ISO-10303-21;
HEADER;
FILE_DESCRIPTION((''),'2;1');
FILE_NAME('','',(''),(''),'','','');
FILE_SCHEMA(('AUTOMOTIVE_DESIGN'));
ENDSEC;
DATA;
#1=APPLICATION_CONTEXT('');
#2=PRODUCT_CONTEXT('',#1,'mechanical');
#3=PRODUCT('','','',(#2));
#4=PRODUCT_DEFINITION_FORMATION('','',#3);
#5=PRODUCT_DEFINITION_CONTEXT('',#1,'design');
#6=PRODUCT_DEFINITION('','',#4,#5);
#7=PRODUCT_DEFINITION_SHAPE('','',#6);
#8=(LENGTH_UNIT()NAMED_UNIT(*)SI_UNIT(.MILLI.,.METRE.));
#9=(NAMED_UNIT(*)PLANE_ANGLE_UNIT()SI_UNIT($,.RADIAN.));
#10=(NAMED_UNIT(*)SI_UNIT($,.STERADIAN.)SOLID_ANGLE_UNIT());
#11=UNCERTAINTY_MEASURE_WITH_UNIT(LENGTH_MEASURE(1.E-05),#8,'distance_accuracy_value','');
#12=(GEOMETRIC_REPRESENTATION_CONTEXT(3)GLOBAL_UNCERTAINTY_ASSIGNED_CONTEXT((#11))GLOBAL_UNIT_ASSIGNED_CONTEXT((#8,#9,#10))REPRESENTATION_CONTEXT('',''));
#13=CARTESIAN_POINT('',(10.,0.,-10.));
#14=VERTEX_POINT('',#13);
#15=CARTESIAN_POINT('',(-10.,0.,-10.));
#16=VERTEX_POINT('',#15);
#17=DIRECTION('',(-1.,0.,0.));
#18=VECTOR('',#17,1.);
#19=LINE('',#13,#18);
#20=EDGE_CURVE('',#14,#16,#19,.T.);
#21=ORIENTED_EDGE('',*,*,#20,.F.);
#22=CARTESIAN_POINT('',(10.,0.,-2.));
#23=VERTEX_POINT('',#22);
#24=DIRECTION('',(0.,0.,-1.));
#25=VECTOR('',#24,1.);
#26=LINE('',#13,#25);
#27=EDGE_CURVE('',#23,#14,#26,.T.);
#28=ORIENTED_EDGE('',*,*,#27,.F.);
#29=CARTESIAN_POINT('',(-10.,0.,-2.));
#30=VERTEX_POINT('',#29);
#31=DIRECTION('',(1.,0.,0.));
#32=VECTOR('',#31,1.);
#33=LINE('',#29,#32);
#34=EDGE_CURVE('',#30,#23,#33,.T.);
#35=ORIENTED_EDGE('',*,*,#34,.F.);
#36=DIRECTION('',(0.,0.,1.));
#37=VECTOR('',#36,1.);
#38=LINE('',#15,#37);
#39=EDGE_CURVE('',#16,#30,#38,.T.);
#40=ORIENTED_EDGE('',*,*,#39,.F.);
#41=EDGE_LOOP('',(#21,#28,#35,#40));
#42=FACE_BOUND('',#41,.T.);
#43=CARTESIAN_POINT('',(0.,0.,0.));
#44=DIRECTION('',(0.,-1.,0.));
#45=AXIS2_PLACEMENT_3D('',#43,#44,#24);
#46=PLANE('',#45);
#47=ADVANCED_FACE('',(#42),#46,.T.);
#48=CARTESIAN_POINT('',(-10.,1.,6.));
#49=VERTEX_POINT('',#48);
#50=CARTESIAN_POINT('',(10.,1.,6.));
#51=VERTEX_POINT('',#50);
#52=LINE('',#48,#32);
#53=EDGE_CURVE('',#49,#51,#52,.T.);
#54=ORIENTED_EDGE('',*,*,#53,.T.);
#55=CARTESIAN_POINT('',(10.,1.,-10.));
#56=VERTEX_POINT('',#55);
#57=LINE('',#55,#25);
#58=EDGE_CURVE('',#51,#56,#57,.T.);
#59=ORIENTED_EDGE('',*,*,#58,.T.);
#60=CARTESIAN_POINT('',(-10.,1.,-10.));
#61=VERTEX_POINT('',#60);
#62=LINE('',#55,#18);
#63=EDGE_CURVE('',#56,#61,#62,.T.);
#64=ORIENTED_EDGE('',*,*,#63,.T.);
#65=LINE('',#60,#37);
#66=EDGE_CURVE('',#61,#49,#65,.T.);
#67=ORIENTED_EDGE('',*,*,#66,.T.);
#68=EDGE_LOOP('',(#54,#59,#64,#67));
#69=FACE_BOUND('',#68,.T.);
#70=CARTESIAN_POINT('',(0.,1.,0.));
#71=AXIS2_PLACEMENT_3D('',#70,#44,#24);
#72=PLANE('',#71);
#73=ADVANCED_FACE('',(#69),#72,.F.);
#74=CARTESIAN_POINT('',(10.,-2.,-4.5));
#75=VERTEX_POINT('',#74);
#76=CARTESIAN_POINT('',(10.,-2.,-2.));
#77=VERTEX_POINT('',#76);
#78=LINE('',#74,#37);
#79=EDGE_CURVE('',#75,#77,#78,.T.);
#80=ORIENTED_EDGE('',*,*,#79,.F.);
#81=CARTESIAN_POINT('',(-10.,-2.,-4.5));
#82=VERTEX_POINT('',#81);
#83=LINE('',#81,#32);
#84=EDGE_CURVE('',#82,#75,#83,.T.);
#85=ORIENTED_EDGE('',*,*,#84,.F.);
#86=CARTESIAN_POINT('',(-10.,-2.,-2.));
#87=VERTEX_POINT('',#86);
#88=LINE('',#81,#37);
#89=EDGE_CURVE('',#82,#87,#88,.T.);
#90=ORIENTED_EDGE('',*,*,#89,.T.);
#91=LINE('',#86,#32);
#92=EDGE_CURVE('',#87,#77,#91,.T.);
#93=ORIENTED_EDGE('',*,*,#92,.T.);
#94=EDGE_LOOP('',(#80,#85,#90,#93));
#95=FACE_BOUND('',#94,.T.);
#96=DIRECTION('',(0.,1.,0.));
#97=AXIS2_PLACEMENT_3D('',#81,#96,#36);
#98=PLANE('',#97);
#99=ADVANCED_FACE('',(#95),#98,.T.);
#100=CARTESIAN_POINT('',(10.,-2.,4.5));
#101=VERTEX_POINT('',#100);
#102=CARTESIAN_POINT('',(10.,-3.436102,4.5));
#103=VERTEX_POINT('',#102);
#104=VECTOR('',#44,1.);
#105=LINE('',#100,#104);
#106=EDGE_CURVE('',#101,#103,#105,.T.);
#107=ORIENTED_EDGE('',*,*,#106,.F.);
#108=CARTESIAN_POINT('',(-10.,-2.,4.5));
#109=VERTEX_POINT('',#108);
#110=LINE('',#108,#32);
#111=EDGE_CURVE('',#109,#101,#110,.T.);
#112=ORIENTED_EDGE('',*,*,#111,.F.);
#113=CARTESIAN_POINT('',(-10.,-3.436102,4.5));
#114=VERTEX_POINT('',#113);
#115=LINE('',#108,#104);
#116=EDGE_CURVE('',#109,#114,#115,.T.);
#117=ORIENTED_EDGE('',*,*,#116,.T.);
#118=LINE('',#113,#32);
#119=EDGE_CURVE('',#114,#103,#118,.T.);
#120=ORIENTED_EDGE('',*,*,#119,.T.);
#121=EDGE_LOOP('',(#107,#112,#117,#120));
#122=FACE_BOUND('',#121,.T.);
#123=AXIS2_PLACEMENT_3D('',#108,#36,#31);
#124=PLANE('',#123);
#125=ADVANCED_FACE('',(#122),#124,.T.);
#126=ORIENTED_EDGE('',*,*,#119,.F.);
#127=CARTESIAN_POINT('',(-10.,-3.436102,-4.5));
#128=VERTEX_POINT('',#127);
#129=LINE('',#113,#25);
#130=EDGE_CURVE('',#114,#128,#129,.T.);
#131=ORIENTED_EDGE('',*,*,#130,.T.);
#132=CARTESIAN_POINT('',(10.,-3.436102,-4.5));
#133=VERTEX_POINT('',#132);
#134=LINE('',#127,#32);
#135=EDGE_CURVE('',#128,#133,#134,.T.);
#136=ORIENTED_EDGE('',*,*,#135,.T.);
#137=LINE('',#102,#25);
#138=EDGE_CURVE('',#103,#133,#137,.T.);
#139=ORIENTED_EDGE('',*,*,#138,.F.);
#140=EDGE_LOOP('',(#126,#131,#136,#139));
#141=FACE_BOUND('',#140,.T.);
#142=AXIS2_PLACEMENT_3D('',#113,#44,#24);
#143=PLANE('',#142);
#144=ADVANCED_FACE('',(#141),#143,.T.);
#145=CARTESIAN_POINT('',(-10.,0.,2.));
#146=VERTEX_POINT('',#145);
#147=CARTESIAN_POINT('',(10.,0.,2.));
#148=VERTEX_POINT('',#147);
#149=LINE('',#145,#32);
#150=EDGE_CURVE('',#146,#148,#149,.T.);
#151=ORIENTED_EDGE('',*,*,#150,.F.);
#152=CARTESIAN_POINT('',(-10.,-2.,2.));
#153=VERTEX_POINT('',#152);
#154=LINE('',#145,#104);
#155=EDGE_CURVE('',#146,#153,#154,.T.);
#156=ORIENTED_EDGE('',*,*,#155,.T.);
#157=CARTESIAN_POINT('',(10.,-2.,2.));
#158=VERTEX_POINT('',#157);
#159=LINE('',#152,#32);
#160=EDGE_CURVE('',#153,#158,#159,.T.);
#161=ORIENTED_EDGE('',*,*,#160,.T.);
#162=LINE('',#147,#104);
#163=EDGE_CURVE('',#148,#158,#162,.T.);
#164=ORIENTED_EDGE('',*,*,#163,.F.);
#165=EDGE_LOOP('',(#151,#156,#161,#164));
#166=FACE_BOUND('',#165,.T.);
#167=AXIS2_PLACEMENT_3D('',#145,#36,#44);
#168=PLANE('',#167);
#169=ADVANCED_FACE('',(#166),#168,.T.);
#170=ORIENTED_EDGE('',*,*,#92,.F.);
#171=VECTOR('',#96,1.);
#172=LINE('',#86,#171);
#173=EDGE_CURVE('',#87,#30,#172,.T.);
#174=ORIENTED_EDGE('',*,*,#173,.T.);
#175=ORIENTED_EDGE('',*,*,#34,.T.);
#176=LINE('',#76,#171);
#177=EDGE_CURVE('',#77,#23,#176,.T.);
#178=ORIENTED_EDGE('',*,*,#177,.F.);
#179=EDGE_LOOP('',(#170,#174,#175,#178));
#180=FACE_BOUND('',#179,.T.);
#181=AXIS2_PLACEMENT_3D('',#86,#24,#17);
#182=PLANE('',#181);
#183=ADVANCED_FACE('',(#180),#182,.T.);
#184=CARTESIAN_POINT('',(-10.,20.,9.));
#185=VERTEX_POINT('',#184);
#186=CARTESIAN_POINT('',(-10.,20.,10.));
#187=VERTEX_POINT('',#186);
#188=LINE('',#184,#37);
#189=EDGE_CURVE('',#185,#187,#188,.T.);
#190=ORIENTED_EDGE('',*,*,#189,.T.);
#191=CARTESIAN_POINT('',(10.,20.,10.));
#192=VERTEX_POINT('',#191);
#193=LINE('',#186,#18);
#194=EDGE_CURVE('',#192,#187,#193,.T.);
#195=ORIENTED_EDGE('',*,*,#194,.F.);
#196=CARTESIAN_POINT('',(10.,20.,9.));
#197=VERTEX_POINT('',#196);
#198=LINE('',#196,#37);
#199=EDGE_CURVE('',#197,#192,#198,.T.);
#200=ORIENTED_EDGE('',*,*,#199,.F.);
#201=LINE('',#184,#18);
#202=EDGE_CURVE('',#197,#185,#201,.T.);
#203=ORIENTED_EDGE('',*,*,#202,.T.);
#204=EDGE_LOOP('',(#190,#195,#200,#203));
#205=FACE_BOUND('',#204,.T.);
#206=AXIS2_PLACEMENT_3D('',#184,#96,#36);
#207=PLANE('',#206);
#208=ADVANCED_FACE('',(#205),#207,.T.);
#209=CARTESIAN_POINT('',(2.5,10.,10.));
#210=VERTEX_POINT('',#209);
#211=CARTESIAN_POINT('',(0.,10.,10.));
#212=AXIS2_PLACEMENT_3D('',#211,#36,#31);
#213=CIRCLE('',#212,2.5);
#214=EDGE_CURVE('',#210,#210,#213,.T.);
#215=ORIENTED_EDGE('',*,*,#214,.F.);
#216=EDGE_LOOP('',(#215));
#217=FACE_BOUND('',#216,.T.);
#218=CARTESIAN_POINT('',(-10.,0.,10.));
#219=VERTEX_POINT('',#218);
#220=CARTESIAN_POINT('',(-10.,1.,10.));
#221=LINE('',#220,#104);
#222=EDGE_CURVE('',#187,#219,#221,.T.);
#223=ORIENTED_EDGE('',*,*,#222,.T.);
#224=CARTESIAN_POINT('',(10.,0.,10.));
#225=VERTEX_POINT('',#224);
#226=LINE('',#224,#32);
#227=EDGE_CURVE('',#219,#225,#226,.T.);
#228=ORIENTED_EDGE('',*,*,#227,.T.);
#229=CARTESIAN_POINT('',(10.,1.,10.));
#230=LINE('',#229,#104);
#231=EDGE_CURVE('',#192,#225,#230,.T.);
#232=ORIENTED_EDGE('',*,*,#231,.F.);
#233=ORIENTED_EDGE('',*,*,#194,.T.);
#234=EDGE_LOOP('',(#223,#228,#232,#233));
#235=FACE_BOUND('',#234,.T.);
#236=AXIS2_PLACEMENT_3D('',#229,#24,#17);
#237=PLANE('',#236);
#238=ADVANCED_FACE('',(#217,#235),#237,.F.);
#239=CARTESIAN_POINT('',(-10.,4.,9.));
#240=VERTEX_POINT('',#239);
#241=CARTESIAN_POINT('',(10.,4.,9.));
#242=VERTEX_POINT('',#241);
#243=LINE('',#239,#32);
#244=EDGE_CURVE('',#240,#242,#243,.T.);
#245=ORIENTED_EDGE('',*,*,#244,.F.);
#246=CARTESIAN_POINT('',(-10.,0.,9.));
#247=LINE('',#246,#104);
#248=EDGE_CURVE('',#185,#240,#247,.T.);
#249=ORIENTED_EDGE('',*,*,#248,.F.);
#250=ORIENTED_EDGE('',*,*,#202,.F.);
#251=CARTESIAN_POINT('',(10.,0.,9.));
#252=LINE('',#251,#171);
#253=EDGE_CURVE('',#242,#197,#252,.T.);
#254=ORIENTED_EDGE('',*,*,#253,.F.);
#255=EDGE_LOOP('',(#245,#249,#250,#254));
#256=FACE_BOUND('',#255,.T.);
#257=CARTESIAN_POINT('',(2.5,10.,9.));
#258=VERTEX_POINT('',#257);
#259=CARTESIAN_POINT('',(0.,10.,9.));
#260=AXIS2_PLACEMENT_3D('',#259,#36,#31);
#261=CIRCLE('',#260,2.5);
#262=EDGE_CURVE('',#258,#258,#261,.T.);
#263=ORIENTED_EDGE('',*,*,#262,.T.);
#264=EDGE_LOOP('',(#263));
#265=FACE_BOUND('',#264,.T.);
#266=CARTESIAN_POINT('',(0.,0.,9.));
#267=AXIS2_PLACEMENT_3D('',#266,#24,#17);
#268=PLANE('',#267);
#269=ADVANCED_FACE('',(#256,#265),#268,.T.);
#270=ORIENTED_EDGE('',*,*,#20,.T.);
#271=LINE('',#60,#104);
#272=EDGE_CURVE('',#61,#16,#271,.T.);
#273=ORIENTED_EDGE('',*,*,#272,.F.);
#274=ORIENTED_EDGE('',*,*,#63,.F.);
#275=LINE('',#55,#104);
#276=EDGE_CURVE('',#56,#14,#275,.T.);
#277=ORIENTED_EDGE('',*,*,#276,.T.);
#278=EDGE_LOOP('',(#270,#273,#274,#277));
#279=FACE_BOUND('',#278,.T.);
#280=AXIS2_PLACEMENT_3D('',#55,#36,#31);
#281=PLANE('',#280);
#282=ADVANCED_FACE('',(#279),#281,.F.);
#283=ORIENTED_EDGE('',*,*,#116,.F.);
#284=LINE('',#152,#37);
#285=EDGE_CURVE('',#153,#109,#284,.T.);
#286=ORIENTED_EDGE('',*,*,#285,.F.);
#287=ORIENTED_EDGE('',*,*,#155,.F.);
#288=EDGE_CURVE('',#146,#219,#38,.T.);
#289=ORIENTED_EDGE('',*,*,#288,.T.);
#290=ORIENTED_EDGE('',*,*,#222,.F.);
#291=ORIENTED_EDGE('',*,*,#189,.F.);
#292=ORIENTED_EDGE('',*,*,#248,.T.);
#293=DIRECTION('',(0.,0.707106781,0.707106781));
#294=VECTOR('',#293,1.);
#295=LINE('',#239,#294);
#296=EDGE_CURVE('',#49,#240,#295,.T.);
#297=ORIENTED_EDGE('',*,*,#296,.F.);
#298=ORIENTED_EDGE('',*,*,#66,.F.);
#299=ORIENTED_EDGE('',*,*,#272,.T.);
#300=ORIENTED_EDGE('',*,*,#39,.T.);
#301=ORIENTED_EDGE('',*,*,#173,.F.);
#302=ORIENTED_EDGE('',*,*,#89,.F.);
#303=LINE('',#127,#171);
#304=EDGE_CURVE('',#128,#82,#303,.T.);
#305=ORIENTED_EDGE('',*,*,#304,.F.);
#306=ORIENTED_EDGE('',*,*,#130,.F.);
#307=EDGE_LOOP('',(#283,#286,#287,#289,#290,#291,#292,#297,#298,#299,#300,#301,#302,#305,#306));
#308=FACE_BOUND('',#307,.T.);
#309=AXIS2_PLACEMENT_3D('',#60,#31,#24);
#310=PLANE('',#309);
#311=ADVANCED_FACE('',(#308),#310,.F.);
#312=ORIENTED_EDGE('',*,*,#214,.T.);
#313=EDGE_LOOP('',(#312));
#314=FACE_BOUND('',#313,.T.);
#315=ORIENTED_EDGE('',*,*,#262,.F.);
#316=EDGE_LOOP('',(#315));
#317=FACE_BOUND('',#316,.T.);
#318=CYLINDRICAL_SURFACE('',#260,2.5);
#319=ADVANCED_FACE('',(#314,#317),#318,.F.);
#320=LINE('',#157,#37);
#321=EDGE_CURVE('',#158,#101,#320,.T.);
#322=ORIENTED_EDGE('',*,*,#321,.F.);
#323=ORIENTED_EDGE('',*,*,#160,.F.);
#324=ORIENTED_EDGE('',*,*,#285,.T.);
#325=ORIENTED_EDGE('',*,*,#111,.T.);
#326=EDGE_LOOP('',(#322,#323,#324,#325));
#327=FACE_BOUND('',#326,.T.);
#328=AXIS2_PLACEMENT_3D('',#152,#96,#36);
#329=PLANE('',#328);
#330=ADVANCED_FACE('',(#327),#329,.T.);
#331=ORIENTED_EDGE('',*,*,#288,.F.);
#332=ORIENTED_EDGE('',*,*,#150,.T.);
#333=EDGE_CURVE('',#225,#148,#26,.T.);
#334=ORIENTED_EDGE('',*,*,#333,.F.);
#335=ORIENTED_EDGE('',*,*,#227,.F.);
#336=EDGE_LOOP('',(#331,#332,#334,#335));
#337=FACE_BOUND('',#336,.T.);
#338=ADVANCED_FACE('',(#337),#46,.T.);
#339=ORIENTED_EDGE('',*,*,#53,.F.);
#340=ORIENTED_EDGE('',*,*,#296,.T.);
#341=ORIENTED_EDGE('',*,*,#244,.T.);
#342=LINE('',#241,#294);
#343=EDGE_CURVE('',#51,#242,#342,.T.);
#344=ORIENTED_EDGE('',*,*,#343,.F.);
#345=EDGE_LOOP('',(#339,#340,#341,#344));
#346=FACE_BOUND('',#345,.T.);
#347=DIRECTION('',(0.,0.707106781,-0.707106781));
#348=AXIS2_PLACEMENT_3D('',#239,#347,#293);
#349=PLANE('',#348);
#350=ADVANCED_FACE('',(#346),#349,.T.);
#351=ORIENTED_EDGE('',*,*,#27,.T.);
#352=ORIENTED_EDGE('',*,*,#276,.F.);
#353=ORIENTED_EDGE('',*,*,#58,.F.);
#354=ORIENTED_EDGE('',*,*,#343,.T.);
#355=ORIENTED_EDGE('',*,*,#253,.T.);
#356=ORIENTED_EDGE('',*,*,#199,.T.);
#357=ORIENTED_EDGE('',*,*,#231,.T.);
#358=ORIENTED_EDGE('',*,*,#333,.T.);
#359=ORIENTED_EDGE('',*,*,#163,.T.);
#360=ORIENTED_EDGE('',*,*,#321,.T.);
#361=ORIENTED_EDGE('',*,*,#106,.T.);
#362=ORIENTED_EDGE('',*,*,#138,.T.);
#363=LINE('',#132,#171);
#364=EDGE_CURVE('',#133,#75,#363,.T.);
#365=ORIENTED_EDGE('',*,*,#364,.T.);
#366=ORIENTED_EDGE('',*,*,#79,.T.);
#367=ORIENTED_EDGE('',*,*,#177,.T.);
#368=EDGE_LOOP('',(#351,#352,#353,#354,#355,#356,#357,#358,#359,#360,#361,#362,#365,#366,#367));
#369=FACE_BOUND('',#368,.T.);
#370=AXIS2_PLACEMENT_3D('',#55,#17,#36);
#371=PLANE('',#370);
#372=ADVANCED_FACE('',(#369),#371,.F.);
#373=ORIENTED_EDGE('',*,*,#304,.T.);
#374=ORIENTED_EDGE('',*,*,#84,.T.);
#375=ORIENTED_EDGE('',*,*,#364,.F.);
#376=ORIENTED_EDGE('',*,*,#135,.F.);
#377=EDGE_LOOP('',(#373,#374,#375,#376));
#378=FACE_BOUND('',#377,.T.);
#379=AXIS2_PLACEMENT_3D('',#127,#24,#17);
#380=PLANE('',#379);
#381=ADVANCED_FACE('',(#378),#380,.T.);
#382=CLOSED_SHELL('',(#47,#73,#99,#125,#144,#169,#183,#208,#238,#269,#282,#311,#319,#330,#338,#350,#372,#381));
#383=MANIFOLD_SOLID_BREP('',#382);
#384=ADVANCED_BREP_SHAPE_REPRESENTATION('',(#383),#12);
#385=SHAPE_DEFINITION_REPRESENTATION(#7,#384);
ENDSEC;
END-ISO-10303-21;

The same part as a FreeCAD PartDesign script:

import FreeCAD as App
import Part
import Sketcher
Q = App.Units.Quantity


def add_polygon(sketch, points):
    """Adds a closed chain of lines whose ends are joined by coincident constraints."""
    first, n = sketch.GeometryCount, len(points)
    for a, b in zip(points, points[1:] + points[:1]):
        sketch.addGeometry(Part.LineSegment(App.Vector(*a, 0), App.Vector(*b, 0)), False)
    for i in range(n):
        sketch.addConstraint(Sketcher.Constraint("Coincident", first + i, 2, first + (i + 1) % n, 1))

doc = App.newDocument("Part")
body = doc.addObject("PartDesign::Body", "Body")

# Sketch on XZ plane
sketch1 = doc.addObject("Sketcher::SketchObject", "Sketch")
body.addObject(sketch1)
sketch1.AttachmentSupport = (doc.XZ_Plane, [""])
sketch1.MapMode = "FlatFace"
add_polygon(sketch1, [(-10, -10), (-10, 10), (10, 10), (10, -10)])  # lines 0-3
sketch1.addConstraint([
    Sketcher.Constraint("Vertical", 0),
    Sketcher.Constraint("Horizontal", 1),
    Sketcher.Constraint("Vertical", 2),
    Sketcher.Constraint("Horizontal", 3),
    Sketcher.Constraint("Symmetric", 0, 2, 2, 2, -1, 1),
    Sketcher.Constraint("Equal", 3, 0),
    Sketcher.Constraint("DistanceX", 1, 1, 1, 2, Q("20 mm")),
])
pad1 = doc.addObject("PartDesign::Pad", "Pad")
body.addObject(pad1)
pad1.Profile = sketch1
pad1.Length = 1
pad1.Reversed = True

# Sketch on XY plane
sketch2 = doc.addObject("Sketcher::SketchObject", "Sketch001")
body.addObject(sketch2)
sketch2.AttachmentSupport = (doc.XY_Plane, [""])
sketch2.MapMode = "FlatFace"
sketch2.AttachmentOffset = App.Placement(App.Vector(0, 0, 10), App.Rotation())
add_polygon(sketch2, [(-10, 20), (-10, 0), (10, 0), (10, 20)])  # lines 0-3
sketch2.addGeometry(Part.Circle(App.Vector(0, 10, 0), App.Vector(0, 0, 1), 2.5), False)  # 4
sketch2.addConstraint([
    Sketcher.Constraint("Vertical", 0),
    Sketcher.Constraint("Horizontal", 1),
    Sketcher.Constraint("Vertical", 2),
    Sketcher.Constraint("Horizontal", 3),
    Sketcher.Constraint("Symmetric", 0, 2, 1, 2, -1, 1),
    Sketcher.Constraint("PointOnObject", 4, 3, -2),
    Sketcher.Constraint("Equal", 3, 0),
    Sketcher.Constraint("Diameter", 4, Q("5 mm")),
    Sketcher.Constraint("DistanceX", 1, 1, 1, 2, Q("20 mm")),
    Sketcher.Constraint("DistanceY", -1, 1, 4, 3, Q("10 mm")),
])
pad2 = doc.addObject("PartDesign::Pad", "Pad001")
body.addObject(pad2)
pad2.Profile = sketch2
pad2.Length = 1
pad2.Reversed = True

# Sketch on YZ plane
sketch3 = doc.addObject("Sketcher::SketchObject", "Sketch002")
body.addObject(sketch3)
sketch3.AttachmentSupport = (doc.YZ_Plane, [""])
sketch3.MapMode = "FlatFace"
sketch3.AttachmentOffset = App.Placement(App.Vector(0, 0, 10), App.Rotation())
add_polygon(sketch3, [(1, 6), (4, 9), (1, 9)])  # lines 0-2
sketch3.addConstraint([
    Sketcher.Constraint("Horizontal", 1),
    Sketcher.Constraint("Vertical", 2),
    Sketcher.Constraint("Equal", 1, 2),
    Sketcher.Constraint("DistanceX", 1, 2, 1, 1, Q("3 mm")),
    Sketcher.Constraint("DistanceX", -1, 1, 0, 2, Q("4 mm")),
    Sketcher.Constraint("DistanceY", -1, 1, 0, 2, Q("9 mm")),
])
pad3 = doc.addObject("PartDesign::Pad", "Pad002")
body.addObject(pad3)
pad3.Profile = sketch3
pad3.Length = 20
pad3.Reversed = True

# Sketch on YZ plane
sketch4 = doc.addObject("Sketcher::SketchObject", "Sketch003")
body.addObject(sketch4)
sketch4.AttachmentSupport = (doc.YZ_Plane, [""])
sketch4.MapMode = "FlatFace"
sketch4.AttachmentOffset = App.Placement(App.Vector(0, 0, -9), App.Rotation())
add_polygon(sketch4, [(1, 6), (4, 9), (1, 9)])  # lines 0-2
sketch4.addConstraint([
    Sketcher.Constraint("Horizontal", 1),
    Sketcher.Constraint("Vertical", 2),
    Sketcher.Constraint("Equal", 1, 2),
    Sketcher.Constraint("DistanceX", 1, 2, 1, 1, Q("3 mm")),
    Sketcher.Constraint("DistanceX", -1, 1, 0, 2, Q("4 mm")),
    Sketcher.Constraint("DistanceY", -1, 1, 0, 2, Q("9 mm")),
])
pad4 = doc.addObject("PartDesign::Pad", "Pad003")
body.addObject(pad4)
pad4.Profile = sketch4
pad4.Length = 1
pad4.Reversed = True

# Sketch on YZ plane
sketch5 = doc.addObject("Sketcher::SketchObject", "Sketch004")
body.addObject(sketch5)
sketch5.AttachmentSupport = (doc.YZ_Plane, [""])
sketch5.MapMode = "FlatFace"
sketch5.AttachmentOffset = App.Placement(App.Vector(0, 0, 10), App.Rotation())
add_polygon(sketch5, [(0, 2), (-2, 2), (-2, 4.5), (-3.4, 4.5), (-3.4, -4.5), (-2, -4.5), (-2, -2), (0, -2)])  # lines 0-7
sketch5.addConstraint([
    Sketcher.Constraint("Horizontal", 0),
    Sketcher.Constraint("Vertical", 1),
    Sketcher.Constraint("Horizontal", 2),
    Sketcher.Constraint("Vertical", 3),
    Sketcher.Constraint("Horizontal", 4),
    Sketcher.Constraint("Vertical", 5),
    Sketcher.Constraint("Horizontal", 6),
    Sketcher.Constraint("Vertical", 7),
    Sketcher.Constraint("Symmetric", 6, 2, 7, 2, -1, 1),
    Sketcher.Constraint("Symmetric", 1, 2, 4, 2, -1),
    Sketcher.Constraint("DistanceX", 0, 2, 0, 1, Q("2 mm")),
    Sketcher.Constraint("DistanceY", 3, 2, 3, 1, Q("9 mm")),
    Sketcher.Constraint("DistanceY", 7, 1, 7, 2, Q("4 mm")),
    Sketcher.Constraint("DistanceX", 2, 2, 2, 1, Q("1.436102 mm")),
])
pad5 = doc.addObject("PartDesign::Pad", "Pad004")
body.addObject(pad5)
pad5.Profile = sketch5
pad5.Length = 20
pad5.Reversed = True

doc.recompute()
